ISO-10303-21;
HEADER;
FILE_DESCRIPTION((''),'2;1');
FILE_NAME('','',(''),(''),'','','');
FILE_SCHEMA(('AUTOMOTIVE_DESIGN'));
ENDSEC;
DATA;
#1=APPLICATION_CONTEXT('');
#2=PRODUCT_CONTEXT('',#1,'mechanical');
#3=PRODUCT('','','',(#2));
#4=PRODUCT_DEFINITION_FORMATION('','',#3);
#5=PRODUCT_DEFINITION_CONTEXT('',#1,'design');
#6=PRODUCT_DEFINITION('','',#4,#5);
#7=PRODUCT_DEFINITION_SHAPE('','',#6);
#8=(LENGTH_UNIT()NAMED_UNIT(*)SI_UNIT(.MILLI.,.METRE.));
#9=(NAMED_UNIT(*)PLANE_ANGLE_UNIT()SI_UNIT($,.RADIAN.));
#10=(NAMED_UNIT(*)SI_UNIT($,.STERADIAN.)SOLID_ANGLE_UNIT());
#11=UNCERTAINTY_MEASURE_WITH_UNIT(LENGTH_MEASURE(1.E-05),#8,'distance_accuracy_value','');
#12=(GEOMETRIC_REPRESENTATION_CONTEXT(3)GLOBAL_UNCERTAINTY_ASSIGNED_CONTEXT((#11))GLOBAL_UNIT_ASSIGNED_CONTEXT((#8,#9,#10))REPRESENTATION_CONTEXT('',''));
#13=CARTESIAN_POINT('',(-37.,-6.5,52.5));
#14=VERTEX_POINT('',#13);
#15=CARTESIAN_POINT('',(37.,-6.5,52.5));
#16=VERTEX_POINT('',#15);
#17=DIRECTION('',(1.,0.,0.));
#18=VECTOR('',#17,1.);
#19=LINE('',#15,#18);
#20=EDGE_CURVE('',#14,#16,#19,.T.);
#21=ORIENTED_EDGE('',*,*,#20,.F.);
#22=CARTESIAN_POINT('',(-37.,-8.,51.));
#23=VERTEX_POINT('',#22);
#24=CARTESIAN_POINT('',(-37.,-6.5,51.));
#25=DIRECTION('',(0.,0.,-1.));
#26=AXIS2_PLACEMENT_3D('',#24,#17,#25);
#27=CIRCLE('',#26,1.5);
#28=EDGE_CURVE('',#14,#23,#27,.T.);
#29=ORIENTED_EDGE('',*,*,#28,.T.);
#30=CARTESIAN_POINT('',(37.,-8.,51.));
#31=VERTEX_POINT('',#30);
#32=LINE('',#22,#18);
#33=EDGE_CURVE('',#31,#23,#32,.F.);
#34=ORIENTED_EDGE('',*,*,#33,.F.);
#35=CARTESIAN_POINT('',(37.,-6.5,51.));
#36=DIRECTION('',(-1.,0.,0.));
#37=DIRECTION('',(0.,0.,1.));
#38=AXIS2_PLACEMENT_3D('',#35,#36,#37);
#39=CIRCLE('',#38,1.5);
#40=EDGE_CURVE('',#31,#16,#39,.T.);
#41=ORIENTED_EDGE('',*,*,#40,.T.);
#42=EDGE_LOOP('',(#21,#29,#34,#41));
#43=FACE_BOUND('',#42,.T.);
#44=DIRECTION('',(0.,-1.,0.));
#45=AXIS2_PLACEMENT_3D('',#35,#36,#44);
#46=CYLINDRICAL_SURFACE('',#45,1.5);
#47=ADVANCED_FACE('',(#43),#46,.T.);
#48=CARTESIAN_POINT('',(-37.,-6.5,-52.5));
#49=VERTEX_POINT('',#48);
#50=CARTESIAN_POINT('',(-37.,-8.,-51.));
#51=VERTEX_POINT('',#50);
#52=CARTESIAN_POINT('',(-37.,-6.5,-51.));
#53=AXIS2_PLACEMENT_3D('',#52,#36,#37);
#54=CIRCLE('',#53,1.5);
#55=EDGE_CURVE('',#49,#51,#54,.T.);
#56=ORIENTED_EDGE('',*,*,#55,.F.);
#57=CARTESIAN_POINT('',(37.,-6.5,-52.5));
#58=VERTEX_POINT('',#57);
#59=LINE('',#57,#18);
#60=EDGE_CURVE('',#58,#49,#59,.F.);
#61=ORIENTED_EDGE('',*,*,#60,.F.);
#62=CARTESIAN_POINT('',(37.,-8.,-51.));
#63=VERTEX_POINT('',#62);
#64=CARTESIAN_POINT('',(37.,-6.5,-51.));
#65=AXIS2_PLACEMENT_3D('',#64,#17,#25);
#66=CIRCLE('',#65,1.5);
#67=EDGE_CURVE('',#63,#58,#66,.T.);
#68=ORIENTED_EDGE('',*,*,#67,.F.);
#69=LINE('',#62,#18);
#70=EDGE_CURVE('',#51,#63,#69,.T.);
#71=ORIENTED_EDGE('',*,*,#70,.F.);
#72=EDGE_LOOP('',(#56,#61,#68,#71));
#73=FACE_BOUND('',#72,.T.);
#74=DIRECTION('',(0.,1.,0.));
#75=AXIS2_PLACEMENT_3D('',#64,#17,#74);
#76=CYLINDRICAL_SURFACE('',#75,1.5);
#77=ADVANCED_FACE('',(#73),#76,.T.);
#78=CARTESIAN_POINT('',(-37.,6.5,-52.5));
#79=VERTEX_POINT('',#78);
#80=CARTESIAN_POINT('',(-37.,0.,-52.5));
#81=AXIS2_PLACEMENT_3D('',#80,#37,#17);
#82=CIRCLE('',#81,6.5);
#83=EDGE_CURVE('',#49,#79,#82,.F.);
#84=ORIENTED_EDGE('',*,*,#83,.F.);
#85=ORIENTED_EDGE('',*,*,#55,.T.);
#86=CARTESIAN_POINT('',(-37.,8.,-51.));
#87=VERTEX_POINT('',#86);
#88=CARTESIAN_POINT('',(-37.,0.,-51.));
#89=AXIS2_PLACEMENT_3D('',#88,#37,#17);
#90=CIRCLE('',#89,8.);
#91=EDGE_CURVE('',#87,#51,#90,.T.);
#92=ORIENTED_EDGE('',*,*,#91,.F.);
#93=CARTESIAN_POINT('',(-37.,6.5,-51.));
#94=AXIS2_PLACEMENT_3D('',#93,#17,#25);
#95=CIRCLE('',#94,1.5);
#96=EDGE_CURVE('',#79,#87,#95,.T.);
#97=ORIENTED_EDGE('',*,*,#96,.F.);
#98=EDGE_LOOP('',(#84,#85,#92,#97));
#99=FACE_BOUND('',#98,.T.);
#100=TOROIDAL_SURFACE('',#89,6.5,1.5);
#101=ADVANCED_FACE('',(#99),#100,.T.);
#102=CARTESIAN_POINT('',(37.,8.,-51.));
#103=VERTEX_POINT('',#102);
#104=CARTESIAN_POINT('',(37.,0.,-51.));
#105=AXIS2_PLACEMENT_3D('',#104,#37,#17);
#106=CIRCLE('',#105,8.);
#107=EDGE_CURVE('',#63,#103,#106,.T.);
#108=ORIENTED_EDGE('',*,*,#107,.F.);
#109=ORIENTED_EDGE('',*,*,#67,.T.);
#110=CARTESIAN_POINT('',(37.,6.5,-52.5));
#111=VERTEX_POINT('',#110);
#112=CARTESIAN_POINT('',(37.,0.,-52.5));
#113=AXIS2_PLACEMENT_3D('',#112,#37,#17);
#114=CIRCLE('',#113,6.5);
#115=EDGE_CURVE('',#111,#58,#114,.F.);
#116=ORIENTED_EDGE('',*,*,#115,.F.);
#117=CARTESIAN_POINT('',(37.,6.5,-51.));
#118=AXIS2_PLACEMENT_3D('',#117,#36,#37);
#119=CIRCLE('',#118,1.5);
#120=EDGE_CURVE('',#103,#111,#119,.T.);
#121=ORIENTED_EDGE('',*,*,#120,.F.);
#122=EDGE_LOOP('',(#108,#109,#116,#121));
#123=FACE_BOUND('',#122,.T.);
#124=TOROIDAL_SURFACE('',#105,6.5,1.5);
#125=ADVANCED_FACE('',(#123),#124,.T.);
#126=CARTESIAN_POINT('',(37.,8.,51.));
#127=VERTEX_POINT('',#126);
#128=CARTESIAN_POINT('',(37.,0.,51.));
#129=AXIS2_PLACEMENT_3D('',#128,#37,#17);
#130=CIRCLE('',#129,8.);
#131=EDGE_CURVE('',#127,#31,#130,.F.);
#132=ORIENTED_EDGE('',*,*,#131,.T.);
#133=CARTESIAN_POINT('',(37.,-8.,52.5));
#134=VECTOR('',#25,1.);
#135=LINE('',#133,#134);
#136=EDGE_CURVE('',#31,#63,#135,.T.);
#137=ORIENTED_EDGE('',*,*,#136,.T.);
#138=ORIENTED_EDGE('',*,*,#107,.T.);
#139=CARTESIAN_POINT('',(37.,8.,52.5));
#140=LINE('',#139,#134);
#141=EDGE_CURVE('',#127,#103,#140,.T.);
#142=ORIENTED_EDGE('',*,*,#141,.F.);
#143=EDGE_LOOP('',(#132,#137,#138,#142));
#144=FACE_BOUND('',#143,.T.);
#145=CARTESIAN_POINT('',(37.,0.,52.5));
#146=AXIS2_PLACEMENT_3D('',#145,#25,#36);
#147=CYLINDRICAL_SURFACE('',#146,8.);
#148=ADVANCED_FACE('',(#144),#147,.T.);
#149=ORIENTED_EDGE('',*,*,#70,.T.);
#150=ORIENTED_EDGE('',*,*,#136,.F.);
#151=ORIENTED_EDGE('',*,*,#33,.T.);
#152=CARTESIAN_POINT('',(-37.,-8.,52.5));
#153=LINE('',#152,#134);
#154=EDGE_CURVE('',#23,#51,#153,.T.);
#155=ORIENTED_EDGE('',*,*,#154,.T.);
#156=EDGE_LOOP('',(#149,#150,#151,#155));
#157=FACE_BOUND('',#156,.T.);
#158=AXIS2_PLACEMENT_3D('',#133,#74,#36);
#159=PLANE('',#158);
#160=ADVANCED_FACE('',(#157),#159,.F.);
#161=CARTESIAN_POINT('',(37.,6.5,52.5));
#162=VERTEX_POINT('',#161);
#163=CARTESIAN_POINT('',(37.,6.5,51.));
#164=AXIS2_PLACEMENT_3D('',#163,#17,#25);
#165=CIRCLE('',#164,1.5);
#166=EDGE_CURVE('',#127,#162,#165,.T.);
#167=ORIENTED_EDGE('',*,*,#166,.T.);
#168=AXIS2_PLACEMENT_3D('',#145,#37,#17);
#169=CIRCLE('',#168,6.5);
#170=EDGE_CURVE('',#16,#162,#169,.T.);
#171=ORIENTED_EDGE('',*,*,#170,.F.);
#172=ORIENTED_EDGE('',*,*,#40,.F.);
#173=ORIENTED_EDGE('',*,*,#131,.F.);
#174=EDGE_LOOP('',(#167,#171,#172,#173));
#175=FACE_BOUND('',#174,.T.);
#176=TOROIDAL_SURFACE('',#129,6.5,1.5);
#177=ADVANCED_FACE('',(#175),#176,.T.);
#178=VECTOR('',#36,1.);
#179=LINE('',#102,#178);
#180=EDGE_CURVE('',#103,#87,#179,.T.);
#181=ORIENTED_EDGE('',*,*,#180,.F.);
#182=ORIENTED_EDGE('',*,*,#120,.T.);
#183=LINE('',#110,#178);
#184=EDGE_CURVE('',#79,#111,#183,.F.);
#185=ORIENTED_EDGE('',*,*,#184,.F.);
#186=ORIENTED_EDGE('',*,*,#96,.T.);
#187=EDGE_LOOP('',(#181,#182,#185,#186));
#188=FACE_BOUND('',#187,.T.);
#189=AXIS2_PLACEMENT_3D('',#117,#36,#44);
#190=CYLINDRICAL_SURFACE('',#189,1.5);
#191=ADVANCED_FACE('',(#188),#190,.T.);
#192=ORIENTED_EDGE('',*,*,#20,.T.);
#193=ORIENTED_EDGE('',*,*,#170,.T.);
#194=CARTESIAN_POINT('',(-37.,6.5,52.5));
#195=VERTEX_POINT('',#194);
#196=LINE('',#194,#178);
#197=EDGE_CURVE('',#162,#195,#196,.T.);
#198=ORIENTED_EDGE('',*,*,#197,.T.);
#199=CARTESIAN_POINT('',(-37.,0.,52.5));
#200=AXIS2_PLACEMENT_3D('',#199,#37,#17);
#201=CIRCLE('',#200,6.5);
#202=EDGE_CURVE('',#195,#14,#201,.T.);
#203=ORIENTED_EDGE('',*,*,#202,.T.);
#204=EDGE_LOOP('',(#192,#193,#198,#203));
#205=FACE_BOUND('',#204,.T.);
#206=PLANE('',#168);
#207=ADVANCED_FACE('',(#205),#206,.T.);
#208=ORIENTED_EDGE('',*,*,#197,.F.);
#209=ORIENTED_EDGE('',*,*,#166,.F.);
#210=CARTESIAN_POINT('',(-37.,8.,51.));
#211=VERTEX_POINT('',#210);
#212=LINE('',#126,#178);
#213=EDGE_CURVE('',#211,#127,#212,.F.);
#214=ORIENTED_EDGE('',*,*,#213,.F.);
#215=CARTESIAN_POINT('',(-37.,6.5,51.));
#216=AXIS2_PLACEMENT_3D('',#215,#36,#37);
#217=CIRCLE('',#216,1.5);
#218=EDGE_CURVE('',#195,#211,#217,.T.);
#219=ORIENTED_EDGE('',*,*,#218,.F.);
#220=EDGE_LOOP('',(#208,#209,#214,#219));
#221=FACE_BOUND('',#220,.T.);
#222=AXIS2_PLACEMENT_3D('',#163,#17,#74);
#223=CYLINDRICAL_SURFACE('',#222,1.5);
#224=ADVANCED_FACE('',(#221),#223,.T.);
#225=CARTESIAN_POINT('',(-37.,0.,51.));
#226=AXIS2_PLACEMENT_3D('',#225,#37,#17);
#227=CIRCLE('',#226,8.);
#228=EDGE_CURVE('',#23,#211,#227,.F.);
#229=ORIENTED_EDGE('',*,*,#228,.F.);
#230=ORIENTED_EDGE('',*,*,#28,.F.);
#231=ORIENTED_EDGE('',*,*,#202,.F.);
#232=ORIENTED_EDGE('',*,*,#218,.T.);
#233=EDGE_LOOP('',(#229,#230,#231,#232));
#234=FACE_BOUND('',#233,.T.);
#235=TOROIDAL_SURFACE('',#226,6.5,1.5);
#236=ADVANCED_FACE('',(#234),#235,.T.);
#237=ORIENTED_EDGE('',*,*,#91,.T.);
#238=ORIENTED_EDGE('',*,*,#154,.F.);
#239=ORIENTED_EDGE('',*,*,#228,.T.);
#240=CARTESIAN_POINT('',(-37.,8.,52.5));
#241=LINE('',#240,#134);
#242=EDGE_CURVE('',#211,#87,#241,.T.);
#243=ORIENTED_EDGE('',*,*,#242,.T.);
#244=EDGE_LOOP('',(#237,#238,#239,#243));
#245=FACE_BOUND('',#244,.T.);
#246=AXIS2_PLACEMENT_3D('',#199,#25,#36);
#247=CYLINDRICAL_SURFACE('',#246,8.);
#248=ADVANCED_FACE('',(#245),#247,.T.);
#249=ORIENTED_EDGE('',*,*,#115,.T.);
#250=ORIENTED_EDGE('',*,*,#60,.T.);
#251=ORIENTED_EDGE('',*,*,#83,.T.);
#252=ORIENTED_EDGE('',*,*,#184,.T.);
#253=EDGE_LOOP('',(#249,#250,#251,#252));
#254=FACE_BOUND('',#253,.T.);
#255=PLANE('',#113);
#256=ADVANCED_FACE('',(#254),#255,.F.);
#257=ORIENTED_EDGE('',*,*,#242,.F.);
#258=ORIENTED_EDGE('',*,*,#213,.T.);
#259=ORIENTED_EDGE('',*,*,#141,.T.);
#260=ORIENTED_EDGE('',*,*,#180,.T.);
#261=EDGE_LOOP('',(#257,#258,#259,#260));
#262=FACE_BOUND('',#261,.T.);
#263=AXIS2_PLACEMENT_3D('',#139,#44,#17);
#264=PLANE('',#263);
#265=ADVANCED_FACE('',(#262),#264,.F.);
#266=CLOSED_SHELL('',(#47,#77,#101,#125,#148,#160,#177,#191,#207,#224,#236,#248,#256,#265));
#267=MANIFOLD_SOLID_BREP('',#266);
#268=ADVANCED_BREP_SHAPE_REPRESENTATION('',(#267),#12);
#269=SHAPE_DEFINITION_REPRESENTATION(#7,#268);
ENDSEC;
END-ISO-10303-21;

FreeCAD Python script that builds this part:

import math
import FreeCAD as App
import Part
import Sketcher
from FreeCAD import Vector
Q = App.Units.Quantity


def edges_at(feature, points):
    """Names of the edges that pass closest to the given points."""
    edges = feature.Shape.Edges
    near = lambda p: min(range(len(edges)), key=lambda i: edges[i].distToShape(Part.Vertex(*p))[0])
    return sorted({f"Edge{near(p) + 1}" for p in points})

doc = App.newDocument("Part")
body = doc.addObject("PartDesign::Body", "Body")

sketch1 = body.newObject("Sketcher::SketchObject", "Sketch")
sketch1.AttachmentSupport = (doc.getObject("XY_Plane"), [""])
sketch1.MapMode = "FlatFace"
sketch1.addGeometry(Part.LineSegment(Vector(-37, -8, 0), Vector(37, -8, 0)), False)
sketch1.addGeometry(Part.ArcOfCircle(Part.Circle(Vector(37, 0, 0), Vector(0, 0, 1), 8), math.radians(-90), math.radians(90)), False)
sketch1.addGeometry(Part.LineSegment(Vector(37, 8, 0), Vector(-37, 8, 0)), False)
sketch1.addGeometry(Part.ArcOfCircle(Part.Circle(Vector(-37, 0, 0), Vector(0, 0, 1), 8), math.radians(90), math.radians(270)), False)
sketch1.addConstraint(Sketcher.Constraint("Tangent", 0, 2, 1, 1))
sketch1.addConstraint(Sketcher.Constraint("Tangent", 1, 2, 2, 1))
sketch1.addConstraint(Sketcher.Constraint("Tangent", 2, 2, 3, 1))
sketch1.addConstraint(Sketcher.Constraint("Tangent", 3, 2, 0, 1))
sketch1.addConstraint(Sketcher.Constraint("Horizontal", 0))
sketch1.addConstraint(Sketcher.Constraint("Horizontal", 2))
sketch1.addConstraint(Sketcher.Constraint("Symmetric", 1, 3, 3, 3, -1, 1))
sketch1.addConstraint(Sketcher.Constraint("Radius", 1, Q("8 mm")))
sketch1.addConstraint(Sketcher.Constraint("DistanceX", 0, 1, 0, 2, Q("74 mm")))
pad1 = body.newObject("PartDesign::Pad", "Pad")
pad1.Profile = sketch1
pad1.Length = 105
pad1.Midplane = True
doc.recompute()

fillet = body.newObject("PartDesign::Fillet", "Fillet")
fillet.Base = (pad1, edges_at(pad1, [
    (-45, 0, 52.5),
    (0, -8, 52.5),
    (45, 0, 52.5),
    (0, -8, -52.5),
    (-45, 0, -52.5),
    (0, 8, -52.5),
    (45, 0, -52.5),
    (0, 8, 52.5),
]))
fillet.Radius = 1.5

doc.recompute()
